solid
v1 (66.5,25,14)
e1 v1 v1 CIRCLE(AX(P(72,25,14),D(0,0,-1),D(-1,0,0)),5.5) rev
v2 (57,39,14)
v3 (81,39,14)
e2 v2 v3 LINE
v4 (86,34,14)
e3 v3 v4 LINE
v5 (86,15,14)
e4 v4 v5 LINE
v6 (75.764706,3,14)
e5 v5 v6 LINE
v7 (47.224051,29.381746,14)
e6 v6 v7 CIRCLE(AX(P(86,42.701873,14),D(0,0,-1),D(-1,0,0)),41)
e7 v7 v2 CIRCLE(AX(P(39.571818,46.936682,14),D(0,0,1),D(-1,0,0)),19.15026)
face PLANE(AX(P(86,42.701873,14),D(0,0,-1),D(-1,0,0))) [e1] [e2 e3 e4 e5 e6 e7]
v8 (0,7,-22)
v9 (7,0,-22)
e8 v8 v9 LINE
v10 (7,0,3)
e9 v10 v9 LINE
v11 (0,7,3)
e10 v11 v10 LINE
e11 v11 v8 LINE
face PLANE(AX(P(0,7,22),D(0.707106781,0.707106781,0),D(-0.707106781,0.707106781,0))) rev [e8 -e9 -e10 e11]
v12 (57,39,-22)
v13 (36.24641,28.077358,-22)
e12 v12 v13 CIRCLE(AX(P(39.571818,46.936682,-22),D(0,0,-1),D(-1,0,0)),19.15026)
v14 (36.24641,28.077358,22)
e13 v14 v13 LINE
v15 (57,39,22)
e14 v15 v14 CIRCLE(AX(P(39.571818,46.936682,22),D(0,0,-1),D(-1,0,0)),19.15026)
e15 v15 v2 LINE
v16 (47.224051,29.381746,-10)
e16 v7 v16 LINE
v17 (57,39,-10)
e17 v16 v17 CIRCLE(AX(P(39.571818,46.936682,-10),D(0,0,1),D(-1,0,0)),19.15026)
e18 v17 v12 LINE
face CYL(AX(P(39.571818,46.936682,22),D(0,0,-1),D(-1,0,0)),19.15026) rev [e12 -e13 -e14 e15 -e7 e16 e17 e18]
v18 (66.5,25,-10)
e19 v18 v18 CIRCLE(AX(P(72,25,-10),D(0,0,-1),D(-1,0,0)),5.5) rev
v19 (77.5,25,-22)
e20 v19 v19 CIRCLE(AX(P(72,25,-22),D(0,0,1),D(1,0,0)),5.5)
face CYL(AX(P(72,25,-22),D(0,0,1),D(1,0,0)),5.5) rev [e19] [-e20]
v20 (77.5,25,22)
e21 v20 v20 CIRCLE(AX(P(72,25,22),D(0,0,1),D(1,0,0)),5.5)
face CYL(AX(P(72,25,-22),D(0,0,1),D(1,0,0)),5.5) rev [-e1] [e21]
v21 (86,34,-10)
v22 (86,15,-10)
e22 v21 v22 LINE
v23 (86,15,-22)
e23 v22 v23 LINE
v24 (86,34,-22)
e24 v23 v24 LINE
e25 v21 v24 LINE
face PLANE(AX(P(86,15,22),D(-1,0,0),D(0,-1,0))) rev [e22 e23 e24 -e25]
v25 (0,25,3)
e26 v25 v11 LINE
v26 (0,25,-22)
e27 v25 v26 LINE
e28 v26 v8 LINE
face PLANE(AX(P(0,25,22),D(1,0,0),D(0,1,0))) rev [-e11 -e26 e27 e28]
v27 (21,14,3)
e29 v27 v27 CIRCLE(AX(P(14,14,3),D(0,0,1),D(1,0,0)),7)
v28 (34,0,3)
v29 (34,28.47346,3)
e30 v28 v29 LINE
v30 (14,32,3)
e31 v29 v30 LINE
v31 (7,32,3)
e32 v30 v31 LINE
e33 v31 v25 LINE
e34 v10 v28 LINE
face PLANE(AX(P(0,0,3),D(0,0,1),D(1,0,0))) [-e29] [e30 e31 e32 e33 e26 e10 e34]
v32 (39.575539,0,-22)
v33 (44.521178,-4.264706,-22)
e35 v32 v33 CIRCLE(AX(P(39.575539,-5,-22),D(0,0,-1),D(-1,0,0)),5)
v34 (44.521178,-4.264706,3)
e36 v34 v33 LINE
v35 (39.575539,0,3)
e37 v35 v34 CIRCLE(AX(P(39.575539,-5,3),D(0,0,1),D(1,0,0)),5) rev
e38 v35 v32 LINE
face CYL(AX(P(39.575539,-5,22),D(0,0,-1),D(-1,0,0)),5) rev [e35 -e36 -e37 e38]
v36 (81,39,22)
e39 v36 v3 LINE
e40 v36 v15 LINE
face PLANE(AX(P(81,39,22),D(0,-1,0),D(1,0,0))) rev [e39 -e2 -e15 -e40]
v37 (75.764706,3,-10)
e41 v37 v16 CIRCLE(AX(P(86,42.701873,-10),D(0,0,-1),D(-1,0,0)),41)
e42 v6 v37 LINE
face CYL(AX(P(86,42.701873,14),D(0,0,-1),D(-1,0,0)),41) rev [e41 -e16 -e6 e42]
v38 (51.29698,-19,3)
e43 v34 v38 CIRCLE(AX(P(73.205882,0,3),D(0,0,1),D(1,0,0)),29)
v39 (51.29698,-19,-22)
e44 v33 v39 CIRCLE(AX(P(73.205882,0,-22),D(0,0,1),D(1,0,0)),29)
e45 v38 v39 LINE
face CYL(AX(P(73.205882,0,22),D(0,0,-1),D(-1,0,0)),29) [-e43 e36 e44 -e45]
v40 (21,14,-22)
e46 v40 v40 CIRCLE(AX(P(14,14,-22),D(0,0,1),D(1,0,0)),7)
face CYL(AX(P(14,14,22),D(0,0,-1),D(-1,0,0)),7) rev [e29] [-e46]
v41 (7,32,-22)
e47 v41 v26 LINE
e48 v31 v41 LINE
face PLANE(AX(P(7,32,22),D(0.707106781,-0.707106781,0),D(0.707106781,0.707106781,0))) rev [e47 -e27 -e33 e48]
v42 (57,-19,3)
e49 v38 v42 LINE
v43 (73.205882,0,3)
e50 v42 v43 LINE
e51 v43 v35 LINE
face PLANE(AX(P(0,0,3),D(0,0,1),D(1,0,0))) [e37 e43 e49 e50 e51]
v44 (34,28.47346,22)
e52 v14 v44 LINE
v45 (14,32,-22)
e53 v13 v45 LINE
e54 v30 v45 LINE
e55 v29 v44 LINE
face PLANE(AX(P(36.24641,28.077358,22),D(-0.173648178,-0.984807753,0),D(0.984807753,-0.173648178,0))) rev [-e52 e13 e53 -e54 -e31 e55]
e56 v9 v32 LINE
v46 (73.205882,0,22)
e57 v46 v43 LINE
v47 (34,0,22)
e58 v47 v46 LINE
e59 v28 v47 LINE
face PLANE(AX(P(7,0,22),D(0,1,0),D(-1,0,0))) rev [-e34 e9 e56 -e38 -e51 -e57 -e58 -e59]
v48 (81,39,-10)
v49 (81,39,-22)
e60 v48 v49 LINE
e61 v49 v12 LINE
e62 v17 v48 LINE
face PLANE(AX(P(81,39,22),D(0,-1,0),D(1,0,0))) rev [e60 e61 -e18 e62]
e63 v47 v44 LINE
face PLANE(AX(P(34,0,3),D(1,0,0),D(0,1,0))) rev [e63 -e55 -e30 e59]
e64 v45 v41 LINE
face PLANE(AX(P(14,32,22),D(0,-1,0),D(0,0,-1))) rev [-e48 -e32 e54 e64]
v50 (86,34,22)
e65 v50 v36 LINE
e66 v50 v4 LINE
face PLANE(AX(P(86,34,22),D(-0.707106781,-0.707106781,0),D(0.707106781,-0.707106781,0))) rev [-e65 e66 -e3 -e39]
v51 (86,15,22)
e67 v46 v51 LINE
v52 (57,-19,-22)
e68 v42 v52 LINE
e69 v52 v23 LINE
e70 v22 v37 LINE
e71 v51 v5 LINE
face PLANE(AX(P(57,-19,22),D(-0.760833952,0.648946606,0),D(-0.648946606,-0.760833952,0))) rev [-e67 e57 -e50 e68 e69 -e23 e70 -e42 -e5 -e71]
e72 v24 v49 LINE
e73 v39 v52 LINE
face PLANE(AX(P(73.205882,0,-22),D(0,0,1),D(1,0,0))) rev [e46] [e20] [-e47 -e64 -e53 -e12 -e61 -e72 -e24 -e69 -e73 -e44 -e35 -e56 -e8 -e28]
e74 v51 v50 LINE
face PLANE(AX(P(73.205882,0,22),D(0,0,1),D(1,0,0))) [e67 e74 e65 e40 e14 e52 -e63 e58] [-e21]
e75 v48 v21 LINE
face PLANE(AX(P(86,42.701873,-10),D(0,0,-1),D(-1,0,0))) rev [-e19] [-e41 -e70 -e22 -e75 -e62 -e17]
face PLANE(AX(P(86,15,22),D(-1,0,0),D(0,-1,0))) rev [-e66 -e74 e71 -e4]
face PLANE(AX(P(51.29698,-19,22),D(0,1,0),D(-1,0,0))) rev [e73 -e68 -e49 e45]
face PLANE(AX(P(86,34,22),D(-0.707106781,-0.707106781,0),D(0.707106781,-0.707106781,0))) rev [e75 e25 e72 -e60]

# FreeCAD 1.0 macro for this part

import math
import FreeCAD as App
import Part
import Sketcher
from FreeCAD import Vector
Q = App.Units.Quantity


def add_polygon(sketch, points):
    """Adds a closed chain of lines whose ends are joined by coincident constraints."""
    first, n = sketch.GeometryCount, len(points)
    for a, b in zip(points, points[1:] + points[:1]):
        sketch.addGeometry(Part.LineSegment(App.Vector(*a, 0), App.Vector(*b, 0)), False)
    for i in range(n):
        sketch.addConstraint(Sketcher.Constraint("Coincident", first + i, 2, first + (i + 1) % n, 1))

doc = App.newDocument("Part")
body = doc.addObject("PartDesign::Body", "Body")

# Sketch on XY plane
sketch1 = doc.addObject("Sketcher::SketchObject", "Sketch")
body.addObject(sketch1)
sketch1.AttachmentSupport = (doc.XY_Plane, [""])
sketch1.MapMode = "FlatFace"
sketch1.addGeometry(Part.LineSegment(Vector(51, -19, 0), Vector(57, -19, 0)), False)
sketch1.addGeometry(Part.LineSegment(Vector(57, -19, 0), Vector(86, 15, 0)), False)
sketch1.addGeometry(Part.LineSegment(Vector(86, 15, 0), Vector(86, 34, 0)), False)
sketch1.addGeometry(Part.LineSegment(Vector(86, 34, 0), Vector(81, 39, 0)), False)
sketch1.addGeometry(Part.LineSegment(Vector(81, 39, 0), Vector(57, 39, 0)), False)
sketch1.addGeometry(Part.ArcOfCircle(Part.Circle(Vector(40, 47, 0), Vector(0, 0, 1), 19), math.radians(-100), math.radians(-24)), False)
sketch1.addGeometry(Part.LineSegment(Vector(36, 28, 0), Vector(14, 32, 0)), False)
sketch1.addGeometry(Part.LineSegment(Vector(14, 32, 0), Vector(7, 32, 0)), False)
sketch1.addGeometry(Part.LineSegment(Vector(7, 32, 0), Vector(0, 25, 0)), False)
sketch1.addGeometry(Part.LineSegment(Vector(0, 25, 0), Vector(0, 7, 0)), False)
sketch1.addGeometry(Part.LineSegment(Vector(0, 7, 0), Vector(7, 0, 0)), False)
sketch1.addGeometry(Part.LineSegment(Vector(7, 0, 0), Vector(40, 0, 0)), False)
sketch1.addGeometry(Part.ArcOfCircle(Part.Circle(Vector(40, -5, 0), Vector(0, 0, 1), 5), math.radians(8), math.radians(90)), False)
sketch1.addGeometry(Part.ArcOfCircle(Part.Circle(Vector(73, 0, 0), Vector(0, 0, 1), 29), math.radians(-172), math.radians(-139)), False)
sketch1.addGeometry(Part.Circle(Vector(14, 14, 0), Vector(0, 0, 1), 7), False)
sketch1.addConstraint(Sketcher.Constraint("Coincident", 0, 2, 1, 1))
sketch1.addConstraint(Sketcher.Constraint("Coincident", 1, 2, 2, 1))
sketch1.addConstraint(Sketcher.Constraint("Coincident", 2, 2, 3, 1))
sketch1.addConstraint(Sketcher.Constraint("Coincident", 3, 2, 4, 1))
sketch1.addConstraint(Sketcher.Constraint("Coincident", 4, 2, 5, 2))
sketch1.addConstraint(Sketcher.Constraint("Tangent", 5, 1, 6, 1))
sketch1.addConstraint(Sketcher.Constraint("Coincident", 6, 2, 7, 1))
sketch1.addConstraint(Sketcher.Constraint("Coincident", 7, 2, 8, 1))
sketch1.addConstraint(Sketcher.Constraint("Coincident", 8, 2, 9, 1))
sketch1.addConstraint(Sketcher.Constraint("Coincident", 9, 2, 10, 1))
sketch1.addConstraint(Sketcher.Constraint("Coincident", 10, 2, 11, 1))
sketch1.addConstraint(Sketcher.Constraint("Tangent", 11, 2, 12, 2))
sketch1.addConstraint(Sketcher.Constraint("Tangent", 12, 1, 13, 1))
sketch1.addConstraint(Sketcher.Constraint("Coincident", 13, 2, 0, 1))
sketch1.addConstraint(Sketcher.Constraint("Horizontal", 0))
sketch1.addConstraint(Sketcher.Constraint("Vertical", 2))
sketch1.addConstraint(Sketcher.Constraint("Horizontal", 4))
sketch1.addConstraint(Sketcher.Constraint("Horizontal", 7))
sketch1.addConstraint(Sketcher.Constraint("Vertical", 9))
sketch1.addConstraint(Sketcher.Constraint("Horizontal", 11))
sketch1.addConstraint(Sketcher.Constraint("PointOnObject", 13, 3, -1))
sketch1.addConstraint(Sketcher.Constraint("PointOnObject", 8, 2, -2))
sketch1.addConstraint(Sketcher.Constraint("PointOnObject", 10, 2, -1))
sketch1.addConstraint(Sketcher.Constraint("Perpendicular", 3, 8))
sketch1.addConstraint(Sketcher.Constraint("Perpendicular", 8, 10))
sketch1.addConstraint(Sketcher.Constraint("Vertical", 0, 2, 4, 2))
sketch1.addConstraint(Sketcher.Constraint("Vertical", 14, 3, 6, 2))
sketch1.addConstraint(Sketcher.Constraint("Vertical", 7, 2, 10, 2))
sketch1.addConstraint(Sketcher.Constraint("Equal", 8, 10))
sketch1.addConstraint(Sketcher.Constraint("Diameter", 14, 14.0))
sketch1.addConstraint(Sketcher.Constraint("Radius", 12, 5.0))
sketch1.addConstraint(Sketcher.Constraint("Radius", 13, 29.0))
sketch1.addConstraint(Sketcher.Constraint("DistanceX", 4, 2, 4, 1, 24.0))
sketch1.addConstraint(Sketcher.Constraint("DistanceX", 7, 2, 7, 1, 7.0))
sketch1.addConstraint(Sketcher.Constraint("DistanceY", 2, 1, 2, 2, 19.0))
sketch1.addConstraint(Sketcher.Constraint("DistanceY", 9, 2, 9, 1, 18.0))
sketch1.addConstraint(Sketcher.Constraint("Angle", 6, Q("170 deg")))
sketch1.addConstraint(Sketcher.Constraint("DistanceX", -1, 1, 14, 3, 14.0))
sketch1.addConstraint(Sketcher.Constraint("DistanceY", -1, 1, 14, 3, 14.0))
sketch1.addConstraint(Sketcher.Constraint("DistanceX", -1, 1, 0, 2, 57.0))
sketch1.addConstraint(Sketcher.Constraint("DistanceY", 0, 2, -1, 1, 19.0))
sketch1.addConstraint(Sketcher.Constraint("DistanceX", -1, 1, 1, 2, 86.0))
sketch1.addConstraint(Sketcher.Constraint("DistanceY", -1, 1, 1, 2, 15.0))
sketch1.addConstraint(Sketcher.Constraint("Radius", 5, 19.15026))
sketch1.addConstraint(Sketcher.Constraint("DistanceX", 0, 1, 0, 2, 5.70302))
pad1 = doc.addObject("PartDesign::Pad", "Pad")
body.addObject(pad1)
pad1.Profile = sketch1
pad1.Length = 44
pad1.Midplane = True

# Sketch on XY plane
sketch2 = doc.addObject("Sketcher::SketchObject", "Sketch001")
body.addObject(sketch2)
sketch2.AttachmentSupport = (doc.XY_Plane, [""])
sketch2.MapMode = "FlatFace"
sketch2.AttachmentOffset = App.Placement(Vector(0, 0, 22), App.Rotation())
add_polygon(sketch2, [(34, 32), (0, 32), (0, -19), (86, -19), (86, 0), (34, 0)])  # lines 0-5
sketch2.addConstraint(Sketcher.Constraint("Horizontal", 0))
sketch2.addConstraint(Sketcher.Constraint("Vertical", 1))
sketch2.addConstraint(Sketcher.Constraint("Horizontal", 2))
sketch2.addConstraint(Sketcher.Constraint("Vertical", 3))
sketch2.addConstraint(Sketcher.Constraint("Horizontal", 4))
sketch2.addConstraint(Sketcher.Constraint("Vertical", 5))
sketch2.addConstraint(Sketcher.Constraint("PointOnObject", 0, 2, -2))
sketch2.addConstraint(Sketcher.Constraint("PointOnObject", 3, 2, -1))
sketch2.addConstraint(Sketcher.Constraint("DistanceX", 0, 2, 0, 1, 34.0))
sketch2.addConstraint(Sketcher.Constraint("DistanceX", 2, 1, 2, 2, 86.0))
sketch2.addConstraint(Sketcher.Constraint("DistanceY", 1, 2, 1, 1, 51.0))
sketch2.addConstraint(Sketcher.Constraint("DistanceY", 3, 1, 3, 2, 19.0))
pocket1 = doc.addObject("PartDesign::Pocket", "Pocket")
body.addObject(pocket1)
pocket1.Profile = sketch2
pocket1.Length = 19

# Sketch on XY plane
sketch3 = doc.addObject("Sketcher::SketchObject", "Sketch002")
body.addObject(sketch3)
sketch3.AttachmentSupport = (doc.XY_Plane, [""])
sketch3.MapMode = "FlatFace"
sketch3.AttachmentOffset = App.Placement(Vector(0, 0, 22), App.Rotation())
sketch3.addGeometry(Part.Circle(Vector(72, 25, 0), Vector(0, 0, 1), 6), False)
sketch3.addConstraint(Sketcher.Constraint("Diameter", 0, 11.0))
sketch3.addConstraint(Sketcher.Constraint("DistanceX", -1, 1, 0, 3, 72.0))
sketch3.addConstraint(Sketcher.Constraint("DistanceY", -1, 1, 0, 3, 25.0))
pocket2 = doc.addObject("PartDesign::Pocket", "Pocket001")
body.addObject(pocket2)
pocket2.Profile = sketch3
pocket2.Type = "ThroughAll"

# Sketch on XY plane
sketch4 = doc.addObject("Sketcher::SketchObject", "Sketch003")
body.addObject(sketch4)
sketch4.AttachmentSupport = (doc.XY_Plane, [""])
sketch4.MapMode = "FlatFace"
sketch4.AttachmentOffset = App.Placement(Vector(0, 0, -10), App.Rotation())
sketch4.addGeometry(Part.LineSegment(Vector(86, 15, 0), Vector(76, 3, 0)), False)
sketch4.addGeometry(Part.ArcOfCircle(Part.Circle(Vector(86, 43, 0), Vector(0, 0, 1), 41), math.radians(-161), math.radians(-104)), False)
sketch4.addGeometry(Part.ArcOfCircle(Part.Circle(Vector(40, 47, 0), Vector(0, 0, 1), 19), math.radians(-66), math.radians(-24)), False)
sketch4.addGeometry(Part.LineSegment(Vector(57, 39, 0), Vector(81, 39, 0)), False)
sketch4.addGeometry(Part.LineSegment(Vector(81, 39, 0), Vector(86, 34, 0)), False)
sketch4.addGeometry(Part.LineSegment(Vector(86, 34, 0), Vector(86, 15, 0)), False)
sketch4.addConstraint(Sketcher.Constraint("Coincident", 0, 2, 1, 2))
sketch4.addConstraint(Sketcher.Constraint("Coincident", 1, 1, 2, 1))
sketch4.addConstraint(Sketcher.Constraint("Coincident", 2, 2, 3, 1))
sketch4.addConstraint(Sketcher.Constraint("Coincident", 3, 2, 4, 1))
sketch4.addConstraint(Sketcher.Constraint("Coincident", 4, 2, 5, 1))
sketch4.addConstraint(Sketcher.Constraint("Coincident", 5, 2, 0, 1))
sketch4.addConstraint(Sketcher.Constraint("Horizontal", 3))
sketch4.addConstraint(Sketcher.Constraint("Vertical", 5))
sketch4.addConstraint(Sketcher.Constraint("Vertical", 1, 3, 4, 2))
sketch4.addConstraint(Sketcher.Constraint("Radius", 1, 41.0))
sketch4.addConstraint(Sketcher.Constraint("DistanceX", 3, 1, 3, 2, 24.0))
sketch4.addConstraint(Sketcher.Constraint("DistanceY", 5, 2, 5, 1, 19.0))
sketch4.addConstraint(Sketcher.Constraint("Angle", 4, Q("-45 deg")))
sketch4.addConstraint(Sketcher.Constraint("DistanceX", -1, 1, 1, 3, 86.0))
sketch4.addConstraint(Sketcher.Constraint("DistanceY", -1, 1, 0, 2, 3.0))
sketch4.addConstraint(Sketcher.Constraint("DistanceX", -1, 1, 2, 2, 57.0))
sketch4.addConstraint(Sketcher.Constraint("DistanceY", -1, 1, 2, 2, 39.0))
sketch4.addConstraint(Sketcher.Constraint("Radius", 2, 19.15026))
sketch4.addConstraint(Sketcher.Constraint("DistanceX", -1, 1, 2, 3, 39.571818))
sketch4.addConstraint(Sketcher.Constraint("DistanceX", -1, 1, 1, 1, 47.224051))
pocket3 = doc.addObject("PartDesign::Pocket", "Pocket002")
body.addObject(pocket3)
pocket3.Profile = sketch4
pocket3.Length = 24
pocket3.Reversed = True

doc.recompute()
